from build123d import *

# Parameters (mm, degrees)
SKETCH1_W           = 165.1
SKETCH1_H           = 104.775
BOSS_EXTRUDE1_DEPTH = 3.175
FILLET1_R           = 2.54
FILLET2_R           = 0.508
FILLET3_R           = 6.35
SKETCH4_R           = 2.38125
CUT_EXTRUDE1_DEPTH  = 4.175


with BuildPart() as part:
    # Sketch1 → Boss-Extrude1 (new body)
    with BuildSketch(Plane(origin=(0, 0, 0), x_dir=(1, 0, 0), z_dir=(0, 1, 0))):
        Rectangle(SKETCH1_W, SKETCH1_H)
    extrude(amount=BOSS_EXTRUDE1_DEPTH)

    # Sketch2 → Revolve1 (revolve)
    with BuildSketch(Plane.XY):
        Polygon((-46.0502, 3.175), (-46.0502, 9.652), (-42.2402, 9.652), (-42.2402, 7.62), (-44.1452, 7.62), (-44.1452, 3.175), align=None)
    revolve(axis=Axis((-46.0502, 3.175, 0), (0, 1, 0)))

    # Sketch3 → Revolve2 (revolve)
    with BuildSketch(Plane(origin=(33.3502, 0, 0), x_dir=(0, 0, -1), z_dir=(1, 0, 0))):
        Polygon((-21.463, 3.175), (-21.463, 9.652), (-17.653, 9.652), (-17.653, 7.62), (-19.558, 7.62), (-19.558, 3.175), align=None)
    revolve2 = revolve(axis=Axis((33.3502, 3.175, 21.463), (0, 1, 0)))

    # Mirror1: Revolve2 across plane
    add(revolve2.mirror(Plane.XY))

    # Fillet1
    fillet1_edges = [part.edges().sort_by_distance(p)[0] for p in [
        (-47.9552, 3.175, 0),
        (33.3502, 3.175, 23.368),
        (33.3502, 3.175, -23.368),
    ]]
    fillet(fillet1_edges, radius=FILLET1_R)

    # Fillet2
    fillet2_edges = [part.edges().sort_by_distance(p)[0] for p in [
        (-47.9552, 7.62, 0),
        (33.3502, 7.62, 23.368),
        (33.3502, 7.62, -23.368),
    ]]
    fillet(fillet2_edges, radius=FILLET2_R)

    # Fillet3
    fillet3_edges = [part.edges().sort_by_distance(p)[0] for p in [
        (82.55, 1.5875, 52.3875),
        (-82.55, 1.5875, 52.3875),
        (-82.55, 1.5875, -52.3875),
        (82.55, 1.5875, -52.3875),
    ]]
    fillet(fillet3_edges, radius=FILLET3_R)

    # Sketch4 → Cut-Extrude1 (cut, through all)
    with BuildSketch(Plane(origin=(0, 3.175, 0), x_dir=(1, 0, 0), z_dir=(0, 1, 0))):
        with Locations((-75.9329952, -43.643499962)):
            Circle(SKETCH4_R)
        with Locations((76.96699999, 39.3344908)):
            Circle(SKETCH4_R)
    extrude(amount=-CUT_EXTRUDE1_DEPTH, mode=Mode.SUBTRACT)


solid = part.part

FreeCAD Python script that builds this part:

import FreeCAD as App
import Part
import Sketcher
from FreeCAD import Vector
Q = App.Units.Quantity


def edges_at(feature, points):
    """Names of the edges that pass closest to the given points."""
    edges = feature.Shape.Edges
    near = lambda p: min(range(len(edges)), key=lambda i: edges[i].distToShape(Part.Vertex(*p))[0])
    return sorted({f"Edge{near(p) + 1}" for p in points})

doc = App.newDocument("Part")
body = doc.addObject("PartDesign::Body", "Body")

# Sketch on XZ plane
sketch1 = body.newObject("Sketcher::SketchObject", "Sketch")
sketch1.AttachmentSupport = (doc.getObject("XZ_Plane"), [""])
sketch1.MapMode = "FlatFace"
sketch1.addGeometry([
    Part.LineSegment(Vector(-82.55, -52.3875, 0), Vector(-82.55, 52.3875, 0)),
    Part.LineSegment(Vector(-82.55, 52.3875, 0), Vector(82.55, 52.3875, 0)),
    Part.LineSegment(Vector(82.55, 52.3875, 0), Vector(82.55, -52.3875, 0)),
    Part.LineSegment(Vector(82.55, -52.3875, 0), Vector(-82.55, -52.3875, 0)),
], False)
sketch1.addConstraint([
    Sketcher.Constraint("Coincident", 0, 2, 1, 1),
    Sketcher.Constraint("Coincident", 1, 2, 2, 1),
    Sketcher.Constraint("Coincident", 2, 2, 3, 1),
    Sketcher.Constraint("Coincident", 3, 2, 0, 1),
    Sketcher.Constraint("Vertical", 0),
    Sketcher.Constraint("Horizontal", 1),
    Sketcher.Constraint("Vertical", 2),
    Sketcher.Constraint("Horizontal", 3),
    Sketcher.Constraint("Symmetric", 0, 2, 2, 2, -1, 1),
    Sketcher.Constraint("DistanceX", 1, 1, 1, 2, Q("6.5 in")),
    Sketcher.Constraint("DistanceY", 0, 1, 0, 2, Q("4.125 in")),
])
pad1 = body.newObject("PartDesign::Pad", "Pad")
pad1.Profile = sketch1
pad1.Length = Q("0.125 in")
pad1.Reversed = True

# Sketch on XY plane
sketch2 = body.newObject("Sketcher::SketchObject", "Sketch001")
sketch2.AttachmentSupport = (doc.getObject("XY_Plane"), [""])
sketch2.MapMode = "FlatFace"
sketch2.addGeometry([
    Part.LineSegment(Vector(-46.0502, 9.652, 0), Vector(-46.0502, 3.175, 0)),  # 0
    Part.LineSegment(Vector(-46.0502, 3.175, 0), Vector(-44.1452, 3.175, 0)),  # 1
    Part.LineSegment(Vector(-44.1452, 3.175, 0), Vector(-44.1452, 7.62, 0)),  # 2
    Part.LineSegment(Vector(-44.1452, 7.62, 0), Vector(-42.2402, 7.62, 0)),  # 3
    Part.LineSegment(Vector(-42.2402, 7.62, 0), Vector(-42.2402, 9.652, 0)),  # 4
    Part.LineSegment(Vector(-42.2402, 9.652, 0), Vector(-46.0502, 9.652, 0)),  # 5
], False)
sketch2.addGeometry(Part.LineSegment(Vector(-46.0502, 3.175, 0), Vector(-46.0502, 9.652, 0)), True)  # axis
sketch2.addConstraint([
    Sketcher.Constraint("Coincident", 0, 2, 1, 1),
    Sketcher.Constraint("Coincident", 1, 2, 2, 1),
    Sketcher.Constraint("Coincident", 2, 2, 3, 1),
    Sketcher.Constraint("Coincident", 3, 2, 4, 1),
    Sketcher.Constraint("Coincident", 4, 2, 5, 1),
    Sketcher.Constraint("Coincident", 5, 2, 0, 1),
    Sketcher.Constraint("Vertical", 0),
    Sketcher.Constraint("Horizontal", 1),
    Sketcher.Constraint("Vertical", 2),
    Sketcher.Constraint("Horizontal", 3),
    Sketcher.Constraint("Vertical", 4),
    Sketcher.Constraint("Horizontal", 5),
    Sketcher.Constraint("Vertical", 6),
    Sketcher.Constraint("Coincident", 6, 1, 0, 2),
    Sketcher.Constraint("Horizontal", 4, 2, 6, 2),
    Sketcher.Constraint("Equal", 1, 3),
    Sketcher.Constraint("DistanceX", 5, 2, 5, 1, Q("0.15 in")),
    Sketcher.Constraint("DistanceY", 4, 1, 4, 2, Q("0.08 in")),
    Sketcher.Constraint("DistanceY", -1, 1, 2, 2, Q("0.3 in")),
    Sketcher.Constraint("DistanceY", 0, 2, 0, 1, Q("0.255 in")),
    Sketcher.Constraint("DistanceX", 0, 2, -1, 1, Q("1.813 in")),
])
revolution = body.newObject("PartDesign::Revolution", "Revolution")
revolution.Profile = sketch2
revolution.ReferenceAxis = (sketch2, ["Axis0"])
revolution.Angle = 360

# Sketch on YZ plane
sketch3 = body.newObject("Sketcher::SketchObject", "Sketch002")
sketch3.AttachmentSupport = (doc.getObject("YZ_Plane"), [""])
sketch3.MapMode = "FlatFace"
sketch3.AttachmentOffset = App.Placement(Vector(0, 0, 1.313 * 25.4), App.Rotation())
sketch3.addGeometry([
    Part.LineSegment(Vector(9.652, 21.463, 0), Vector(3.175, 21.463, 0)),  # 0
    Part.LineSegment(Vector(3.175, 21.463, 0), Vector(3.175, 19.558, 0)),  # 1
    Part.LineSegment(Vector(3.175, 19.558, 0), Vector(7.62, 19.558, 0)),  # 2
    Part.LineSegment(Vector(7.62, 19.558, 0), Vector(7.62, 17.653, 0)),  # 3
    Part.LineSegment(Vector(7.62, 17.653, 0), Vector(9.652, 17.653, 0)),  # 4
    Part.LineSegment(Vector(9.652, 17.653, 0), Vector(9.652, 21.463, 0)),  # 5
], False)
sketch3.addGeometry(Part.LineSegment(Vector(3.175, 21.463, 0), Vector(9.652, 21.463, 0)), True)  # axis
sketch3.addConstraint([
    Sketcher.Constraint("Coincident", 0, 2, 1, 1),
    Sketcher.Constraint("Coincident", 1, 2, 2, 1),
    Sketcher.Constraint("Coincident", 2, 2, 3, 1),
    Sketcher.Constraint("Coincident", 3, 2, 4, 1),
    Sketcher.Constraint("Coincident", 4, 2, 5, 1),
    Sketcher.Constraint("Coincident", 5, 2, 0, 1),
    Sketcher.Constraint("Horizontal", 0),
    Sketcher.Constraint("Vertical", 1),
    Sketcher.Constraint("Horizontal", 2),
    Sketcher.Constraint("Vertical", 3),
    Sketcher.Constraint("Horizontal", 4),
    Sketcher.Constraint("Vertical", 5),
    Sketcher.Constraint("Horizontal", 6),
    Sketcher.Constraint("Coincident", 6, 1, 0, 2),
    Sketcher.Constraint("Vertical", 4, 2, 6, 2),
    Sketcher.Constraint("Equal", 1, 3),
    Sketcher.Constraint("DistanceX", 4, 1, 4, 2, Q("0.08 in")),
    Sketcher.Constraint("DistanceY", 5, 1, 5, 2, Q("0.15 in")),
    Sketcher.Constraint("DistanceX", -1, 1, 2, 2, Q("0.3 in")),
    Sketcher.Constraint("DistanceX", 0, 2, 0, 1, Q("0.255 in")),
    Sketcher.Constraint("DistanceY", -1, 1, 1, 2, Q("0.77 in")),
])
revolution2 = body.newObject("PartDesign::Revolution", "Revolution001")
revolution2.Profile = sketch3
revolution2.ReferenceAxis = (sketch3, ["Axis0"])
revolution2.Angle = 360
doc.recompute()

mirrored = body.newObject("PartDesign::Mirrored", "Mirrored")
mirrored.Originals = [revolution2]
mirrored.MirrorPlane = (doc.getObject("XY_Plane"), [""])
body.Tip = mirrored
doc.recompute()

fillet = body.newObject("PartDesign::Fillet", "Fillet")
fillet.Base = (mirrored, edges_at(mirrored, [(-47.955, 3.175, 0), (33.35, 3.175, 23.368), (33.35, 3.175, -23.368)]))
fillet.Radius = Q("0.1 in")
doc.recompute()

fillet2 = body.newObject("PartDesign::Fillet", "Fillet001")
fillet2.Base = (fillet, edges_at(fillet, [(-47.955, 7.62, 0), (33.35, 7.62, 23.368), (33.35, 7.62, -23.368)]))
fillet2.Radius = Q("0.02 in")
doc.recompute()

fillet3 = body.newObject("PartDesign::Fillet", "Fillet002")
fillet3.Base = (fillet2, edges_at(fillet2, [
    (82.55, 1.587, 52.388),
    (-82.55, 1.587, 52.388),
    (-82.55, 1.587, -52.388),
    (82.55, 1.587, -52.388),
]))
fillet3.Radius = Q("0.25 in")

# Sketch on XZ plane
sketch4 = body.newObject("Sketcher::SketchObject", "Sketch003")
sketch4.AttachmentSupport = (doc.getObject("XZ_Plane"), [""])
sketch4.MapMode = "FlatFace"
sketch4.AttachmentOffset = App.Placement(Vector(0, 0, -0.125 * 25.4), App.Rotation())
sketch4.addGeometry([
    Part.Circle(Vector(-75.932995, 43.6435, 0), Vector(0, 0, 1), 2.38125),
    Part.Circle(Vector(76.967, -39.334491, 0), Vector(0, 0, 1), 2.38125),
], False)
sketch4.addConstraint([
    Sketcher.Constraint("Equal", 0, 1),
    Sketcher.Constraint("Diameter", 0, Q("0.1875 in")),
    Sketcher.Constraint("DistanceY", -1, 1, 0, 3, 43.6435),
    Sketcher.Constraint("DistanceX", -1, 1, 1, 3, 76.967),
    Sketcher.Constraint("DistanceY", 1, 3, -1, 1, 39.334491),
    Sketcher.Constraint("DistanceX", 0, 3, -1, 1, 75.932995),
])
pocket1 = body.newObject("PartDesign::Pocket", "Pocket")
pocket1.Profile = sketch4
pocket1.Type = "ThroughAll"
pocket1.Reversed = True

doc.recompute()
